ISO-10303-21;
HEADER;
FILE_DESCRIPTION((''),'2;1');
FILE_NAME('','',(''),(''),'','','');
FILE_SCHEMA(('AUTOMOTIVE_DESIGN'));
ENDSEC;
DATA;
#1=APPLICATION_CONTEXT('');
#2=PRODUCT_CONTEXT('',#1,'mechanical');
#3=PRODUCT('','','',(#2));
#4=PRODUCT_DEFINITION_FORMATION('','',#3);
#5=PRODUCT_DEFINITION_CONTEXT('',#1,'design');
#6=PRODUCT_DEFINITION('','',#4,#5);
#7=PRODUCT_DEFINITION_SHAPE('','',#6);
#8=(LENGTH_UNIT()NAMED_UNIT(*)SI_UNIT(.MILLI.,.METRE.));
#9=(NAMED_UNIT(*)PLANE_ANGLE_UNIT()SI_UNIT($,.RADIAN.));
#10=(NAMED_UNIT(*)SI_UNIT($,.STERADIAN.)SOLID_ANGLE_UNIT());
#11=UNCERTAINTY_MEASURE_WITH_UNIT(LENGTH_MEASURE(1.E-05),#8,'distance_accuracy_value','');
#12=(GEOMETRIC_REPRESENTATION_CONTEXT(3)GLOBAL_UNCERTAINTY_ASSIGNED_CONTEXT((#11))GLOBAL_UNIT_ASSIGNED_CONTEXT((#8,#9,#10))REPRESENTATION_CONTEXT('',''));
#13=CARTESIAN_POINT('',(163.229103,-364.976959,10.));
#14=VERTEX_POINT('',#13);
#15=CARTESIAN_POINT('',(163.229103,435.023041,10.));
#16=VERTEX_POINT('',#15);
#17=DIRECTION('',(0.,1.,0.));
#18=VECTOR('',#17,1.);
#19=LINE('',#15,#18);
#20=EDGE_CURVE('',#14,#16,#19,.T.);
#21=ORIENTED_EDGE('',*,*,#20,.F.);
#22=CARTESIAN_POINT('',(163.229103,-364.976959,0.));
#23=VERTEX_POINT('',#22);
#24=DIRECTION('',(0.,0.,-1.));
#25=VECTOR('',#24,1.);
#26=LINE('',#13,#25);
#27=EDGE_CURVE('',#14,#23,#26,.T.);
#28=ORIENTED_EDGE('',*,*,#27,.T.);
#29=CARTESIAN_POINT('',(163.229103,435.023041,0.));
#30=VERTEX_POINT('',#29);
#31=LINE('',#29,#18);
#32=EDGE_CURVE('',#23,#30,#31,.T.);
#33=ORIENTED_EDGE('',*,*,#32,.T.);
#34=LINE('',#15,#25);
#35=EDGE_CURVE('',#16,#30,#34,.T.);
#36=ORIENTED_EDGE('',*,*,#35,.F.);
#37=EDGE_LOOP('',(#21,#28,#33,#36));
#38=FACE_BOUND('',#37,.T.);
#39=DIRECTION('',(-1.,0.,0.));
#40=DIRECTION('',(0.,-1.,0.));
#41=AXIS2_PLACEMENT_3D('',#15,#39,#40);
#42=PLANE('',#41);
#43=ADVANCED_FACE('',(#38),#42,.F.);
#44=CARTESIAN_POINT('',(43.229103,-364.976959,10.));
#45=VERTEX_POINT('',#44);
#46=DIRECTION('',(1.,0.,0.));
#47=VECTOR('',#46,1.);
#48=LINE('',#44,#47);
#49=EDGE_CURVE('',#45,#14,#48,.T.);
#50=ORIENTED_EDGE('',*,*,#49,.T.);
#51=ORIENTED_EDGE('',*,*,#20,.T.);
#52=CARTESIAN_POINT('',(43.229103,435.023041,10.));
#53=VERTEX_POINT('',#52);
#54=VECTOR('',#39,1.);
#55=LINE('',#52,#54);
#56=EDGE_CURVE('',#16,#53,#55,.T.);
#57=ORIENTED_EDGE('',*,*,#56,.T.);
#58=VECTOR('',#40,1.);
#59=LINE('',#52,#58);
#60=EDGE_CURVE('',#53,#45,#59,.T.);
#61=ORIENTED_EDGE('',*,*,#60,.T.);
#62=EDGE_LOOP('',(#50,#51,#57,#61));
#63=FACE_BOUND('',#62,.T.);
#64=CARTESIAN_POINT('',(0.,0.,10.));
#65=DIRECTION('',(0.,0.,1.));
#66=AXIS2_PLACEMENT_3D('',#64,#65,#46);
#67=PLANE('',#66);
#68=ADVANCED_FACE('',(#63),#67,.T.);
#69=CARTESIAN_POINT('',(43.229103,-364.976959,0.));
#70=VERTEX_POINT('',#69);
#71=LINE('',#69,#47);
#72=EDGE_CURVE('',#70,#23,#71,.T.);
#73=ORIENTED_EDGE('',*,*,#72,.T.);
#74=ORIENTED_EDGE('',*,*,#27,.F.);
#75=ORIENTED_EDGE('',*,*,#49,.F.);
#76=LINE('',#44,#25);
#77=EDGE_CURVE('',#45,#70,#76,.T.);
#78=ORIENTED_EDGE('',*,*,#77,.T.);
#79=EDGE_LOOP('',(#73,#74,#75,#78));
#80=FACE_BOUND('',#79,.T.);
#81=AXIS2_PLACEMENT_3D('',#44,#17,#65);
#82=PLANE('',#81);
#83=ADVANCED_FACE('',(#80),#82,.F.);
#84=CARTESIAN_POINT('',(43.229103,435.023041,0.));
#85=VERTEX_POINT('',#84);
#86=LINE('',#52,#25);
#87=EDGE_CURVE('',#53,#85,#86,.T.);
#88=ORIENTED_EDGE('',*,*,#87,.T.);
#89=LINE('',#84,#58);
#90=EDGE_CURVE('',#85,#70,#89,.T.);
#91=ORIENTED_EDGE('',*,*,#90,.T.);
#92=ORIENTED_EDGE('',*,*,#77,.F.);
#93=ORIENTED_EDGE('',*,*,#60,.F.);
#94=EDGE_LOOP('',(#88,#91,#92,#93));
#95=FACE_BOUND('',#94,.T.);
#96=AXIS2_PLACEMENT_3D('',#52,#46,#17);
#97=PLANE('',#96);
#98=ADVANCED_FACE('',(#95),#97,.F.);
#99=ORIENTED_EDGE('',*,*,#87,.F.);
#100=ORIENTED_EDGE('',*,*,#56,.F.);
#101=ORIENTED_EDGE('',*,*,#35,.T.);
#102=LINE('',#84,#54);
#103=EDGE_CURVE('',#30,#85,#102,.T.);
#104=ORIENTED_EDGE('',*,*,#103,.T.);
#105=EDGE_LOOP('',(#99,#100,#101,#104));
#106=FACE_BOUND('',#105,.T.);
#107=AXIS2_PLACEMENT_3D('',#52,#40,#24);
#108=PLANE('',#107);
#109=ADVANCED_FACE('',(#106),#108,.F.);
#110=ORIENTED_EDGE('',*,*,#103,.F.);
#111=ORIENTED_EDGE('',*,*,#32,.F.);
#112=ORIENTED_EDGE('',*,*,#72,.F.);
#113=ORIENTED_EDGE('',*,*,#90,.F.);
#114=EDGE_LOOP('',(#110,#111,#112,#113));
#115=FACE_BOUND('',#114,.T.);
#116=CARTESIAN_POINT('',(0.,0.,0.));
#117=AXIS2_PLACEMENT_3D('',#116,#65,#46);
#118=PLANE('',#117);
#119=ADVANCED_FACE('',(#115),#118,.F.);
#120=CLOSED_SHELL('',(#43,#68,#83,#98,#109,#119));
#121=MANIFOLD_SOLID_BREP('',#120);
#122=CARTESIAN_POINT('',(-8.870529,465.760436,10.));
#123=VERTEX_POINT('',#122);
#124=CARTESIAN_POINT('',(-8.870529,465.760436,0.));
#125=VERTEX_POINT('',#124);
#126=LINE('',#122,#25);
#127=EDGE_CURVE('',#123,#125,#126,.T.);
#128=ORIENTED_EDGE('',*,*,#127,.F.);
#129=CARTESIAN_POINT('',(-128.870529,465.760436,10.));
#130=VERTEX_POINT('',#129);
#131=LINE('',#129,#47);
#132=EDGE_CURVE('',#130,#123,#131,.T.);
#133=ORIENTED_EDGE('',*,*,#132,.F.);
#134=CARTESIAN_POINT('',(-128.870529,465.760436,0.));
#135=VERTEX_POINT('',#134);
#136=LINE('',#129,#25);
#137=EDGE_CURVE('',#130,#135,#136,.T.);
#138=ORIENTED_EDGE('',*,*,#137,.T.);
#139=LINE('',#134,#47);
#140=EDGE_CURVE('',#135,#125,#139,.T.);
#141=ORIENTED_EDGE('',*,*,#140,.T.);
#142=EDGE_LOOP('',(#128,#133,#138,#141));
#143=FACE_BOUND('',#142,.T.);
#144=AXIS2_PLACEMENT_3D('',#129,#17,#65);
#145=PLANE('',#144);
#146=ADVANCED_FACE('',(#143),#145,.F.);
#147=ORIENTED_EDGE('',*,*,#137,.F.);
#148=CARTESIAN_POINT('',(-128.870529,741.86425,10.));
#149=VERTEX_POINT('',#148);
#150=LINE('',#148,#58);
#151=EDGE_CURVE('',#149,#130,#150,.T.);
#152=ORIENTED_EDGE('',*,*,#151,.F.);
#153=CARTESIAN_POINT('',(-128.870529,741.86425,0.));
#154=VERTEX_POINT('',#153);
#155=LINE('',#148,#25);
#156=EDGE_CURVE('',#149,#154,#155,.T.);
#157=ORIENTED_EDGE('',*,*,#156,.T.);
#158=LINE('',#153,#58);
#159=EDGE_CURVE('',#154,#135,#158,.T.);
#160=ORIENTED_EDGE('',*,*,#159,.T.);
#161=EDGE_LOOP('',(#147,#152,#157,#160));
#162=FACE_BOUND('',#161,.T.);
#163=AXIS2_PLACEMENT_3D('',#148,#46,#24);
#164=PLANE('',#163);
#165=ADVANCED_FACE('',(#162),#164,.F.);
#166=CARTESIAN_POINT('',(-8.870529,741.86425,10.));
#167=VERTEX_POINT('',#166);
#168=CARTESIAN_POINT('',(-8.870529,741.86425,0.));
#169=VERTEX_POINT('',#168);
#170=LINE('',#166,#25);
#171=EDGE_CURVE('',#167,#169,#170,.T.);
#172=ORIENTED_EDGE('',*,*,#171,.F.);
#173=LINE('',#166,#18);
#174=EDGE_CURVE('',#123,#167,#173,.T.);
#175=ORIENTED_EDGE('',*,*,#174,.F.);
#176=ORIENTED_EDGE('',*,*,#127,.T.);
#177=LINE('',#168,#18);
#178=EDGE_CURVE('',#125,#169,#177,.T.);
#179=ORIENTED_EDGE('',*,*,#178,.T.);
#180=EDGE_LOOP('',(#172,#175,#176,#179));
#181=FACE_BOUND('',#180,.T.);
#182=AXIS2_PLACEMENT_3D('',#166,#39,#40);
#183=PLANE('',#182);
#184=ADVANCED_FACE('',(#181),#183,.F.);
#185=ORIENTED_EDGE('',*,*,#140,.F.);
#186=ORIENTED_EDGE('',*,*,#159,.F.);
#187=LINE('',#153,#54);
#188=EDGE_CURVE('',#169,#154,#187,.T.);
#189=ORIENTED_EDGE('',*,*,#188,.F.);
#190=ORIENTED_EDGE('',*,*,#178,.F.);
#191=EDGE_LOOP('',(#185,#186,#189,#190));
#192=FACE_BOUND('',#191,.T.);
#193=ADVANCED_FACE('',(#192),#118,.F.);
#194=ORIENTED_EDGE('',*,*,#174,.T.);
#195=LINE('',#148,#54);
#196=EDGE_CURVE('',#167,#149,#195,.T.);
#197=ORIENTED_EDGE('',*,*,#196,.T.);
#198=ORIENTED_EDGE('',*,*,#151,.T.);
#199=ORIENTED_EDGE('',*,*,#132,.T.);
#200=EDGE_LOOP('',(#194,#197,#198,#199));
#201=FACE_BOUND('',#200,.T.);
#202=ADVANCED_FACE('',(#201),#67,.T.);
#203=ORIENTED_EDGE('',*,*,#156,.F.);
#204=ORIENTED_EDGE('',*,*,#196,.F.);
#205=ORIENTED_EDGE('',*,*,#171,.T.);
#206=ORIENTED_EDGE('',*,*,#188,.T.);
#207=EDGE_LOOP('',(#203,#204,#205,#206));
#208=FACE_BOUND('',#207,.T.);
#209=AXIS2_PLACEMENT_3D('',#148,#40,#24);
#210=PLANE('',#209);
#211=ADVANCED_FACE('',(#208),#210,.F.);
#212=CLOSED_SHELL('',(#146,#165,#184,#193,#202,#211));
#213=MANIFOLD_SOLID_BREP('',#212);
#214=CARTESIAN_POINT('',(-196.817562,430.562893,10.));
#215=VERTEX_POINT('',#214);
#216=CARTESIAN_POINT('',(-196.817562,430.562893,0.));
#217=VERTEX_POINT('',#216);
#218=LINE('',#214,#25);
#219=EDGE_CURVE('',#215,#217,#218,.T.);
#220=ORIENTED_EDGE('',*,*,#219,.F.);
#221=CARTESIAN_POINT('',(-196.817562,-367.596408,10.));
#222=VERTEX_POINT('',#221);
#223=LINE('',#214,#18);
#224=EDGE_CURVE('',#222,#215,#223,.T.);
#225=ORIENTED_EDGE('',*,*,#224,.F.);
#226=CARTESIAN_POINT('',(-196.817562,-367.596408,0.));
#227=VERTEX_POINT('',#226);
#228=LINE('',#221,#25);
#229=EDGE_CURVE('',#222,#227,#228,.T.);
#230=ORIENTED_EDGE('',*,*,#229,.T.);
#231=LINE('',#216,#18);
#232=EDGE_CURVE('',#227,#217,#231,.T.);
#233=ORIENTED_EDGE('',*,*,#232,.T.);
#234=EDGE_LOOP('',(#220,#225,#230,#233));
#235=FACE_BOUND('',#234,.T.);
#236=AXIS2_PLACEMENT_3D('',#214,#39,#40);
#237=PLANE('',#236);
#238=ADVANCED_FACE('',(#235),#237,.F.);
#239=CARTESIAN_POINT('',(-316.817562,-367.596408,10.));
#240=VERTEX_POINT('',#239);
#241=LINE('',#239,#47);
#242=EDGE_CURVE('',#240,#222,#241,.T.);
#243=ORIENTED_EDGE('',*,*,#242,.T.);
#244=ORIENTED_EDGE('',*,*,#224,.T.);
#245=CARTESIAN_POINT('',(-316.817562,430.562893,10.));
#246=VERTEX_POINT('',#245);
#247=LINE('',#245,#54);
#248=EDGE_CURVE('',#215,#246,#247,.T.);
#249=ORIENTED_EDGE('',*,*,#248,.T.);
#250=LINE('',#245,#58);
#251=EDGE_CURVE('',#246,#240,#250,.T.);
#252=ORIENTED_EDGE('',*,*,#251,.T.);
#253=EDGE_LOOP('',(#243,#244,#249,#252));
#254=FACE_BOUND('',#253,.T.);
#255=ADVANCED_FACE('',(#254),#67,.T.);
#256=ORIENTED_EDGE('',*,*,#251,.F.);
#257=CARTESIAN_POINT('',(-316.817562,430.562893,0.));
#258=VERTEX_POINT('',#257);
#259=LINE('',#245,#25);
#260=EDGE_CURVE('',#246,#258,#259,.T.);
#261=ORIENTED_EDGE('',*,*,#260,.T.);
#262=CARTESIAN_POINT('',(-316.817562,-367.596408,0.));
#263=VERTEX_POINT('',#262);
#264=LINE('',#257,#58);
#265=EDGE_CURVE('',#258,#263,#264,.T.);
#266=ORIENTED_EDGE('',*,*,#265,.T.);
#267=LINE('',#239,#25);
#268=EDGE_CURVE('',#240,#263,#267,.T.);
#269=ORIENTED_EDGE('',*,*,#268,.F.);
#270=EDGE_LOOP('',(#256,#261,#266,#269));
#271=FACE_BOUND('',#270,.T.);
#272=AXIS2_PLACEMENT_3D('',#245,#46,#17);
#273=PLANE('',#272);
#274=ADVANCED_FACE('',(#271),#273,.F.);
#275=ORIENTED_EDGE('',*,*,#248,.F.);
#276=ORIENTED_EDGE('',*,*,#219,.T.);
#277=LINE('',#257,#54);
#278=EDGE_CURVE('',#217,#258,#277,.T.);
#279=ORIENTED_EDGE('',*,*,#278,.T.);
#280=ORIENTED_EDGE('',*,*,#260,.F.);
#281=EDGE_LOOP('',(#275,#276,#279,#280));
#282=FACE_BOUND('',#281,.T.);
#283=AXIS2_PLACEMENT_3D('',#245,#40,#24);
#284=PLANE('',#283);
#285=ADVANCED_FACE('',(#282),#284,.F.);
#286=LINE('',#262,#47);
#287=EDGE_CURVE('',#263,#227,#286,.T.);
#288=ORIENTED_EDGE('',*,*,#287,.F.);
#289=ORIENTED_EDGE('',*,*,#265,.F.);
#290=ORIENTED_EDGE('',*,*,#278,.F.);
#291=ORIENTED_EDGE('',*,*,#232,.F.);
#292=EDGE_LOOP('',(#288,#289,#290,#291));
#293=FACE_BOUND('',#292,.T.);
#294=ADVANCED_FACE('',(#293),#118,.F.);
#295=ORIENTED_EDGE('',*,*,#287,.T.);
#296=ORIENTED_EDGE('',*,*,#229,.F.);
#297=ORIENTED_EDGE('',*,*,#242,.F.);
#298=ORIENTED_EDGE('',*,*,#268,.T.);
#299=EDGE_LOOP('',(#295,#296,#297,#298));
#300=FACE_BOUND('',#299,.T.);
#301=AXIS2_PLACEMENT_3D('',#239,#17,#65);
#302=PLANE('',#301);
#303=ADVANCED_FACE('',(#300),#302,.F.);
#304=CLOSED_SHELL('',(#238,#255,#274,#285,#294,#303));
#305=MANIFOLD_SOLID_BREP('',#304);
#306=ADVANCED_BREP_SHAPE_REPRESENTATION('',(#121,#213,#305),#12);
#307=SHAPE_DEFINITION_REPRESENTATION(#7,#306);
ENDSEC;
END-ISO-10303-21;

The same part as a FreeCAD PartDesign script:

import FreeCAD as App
import Part
import Sketcher


def add_polygon(sketch, points):
    """Adds a closed chain of lines whose ends are joined by coincident constraints."""
    first, n = sketch.GeometryCount, len(points)
    for a, b in zip(points, points[1:] + points[:1]):
        sketch.addGeometry(Part.LineSegment(App.Vector(*a, 0), App.Vector(*b, 0)), False)
    for i in range(n):
        sketch.addConstraint(Sketcher.Constraint("Coincident", first + i, 2, first + (i + 1) % n, 1))

doc = App.newDocument("Part")
body = doc.addObject("PartDesign::Body", "Body")

sketch1 = body.newObject("Sketcher::SketchObject", "Sketch")
sketch1.AttachmentSupport = (doc.getObject("XY_Plane"), [""])
sketch1.MapMode = "FlatFace"
add_polygon(sketch1, [(43.229103, 435.023041), (43.229103, -364.976959), (163.229103, -364.976959), (163.229103, 435.023041)])
sketch1.addConstraint([
    Sketcher.Constraint("Vertical", 0),
    Sketcher.Constraint("Horizontal", 1),
    Sketcher.Constraint("Vertical", 2),
    Sketcher.Constraint("Horizontal", 3),
    Sketcher.Constraint("DistanceX", 1, 1, 1, 2, 120.0),
    Sketcher.Constraint("DistanceY", 0, 2, 0, 1, 800.0),
    Sketcher.Constraint("DistanceY", 0, 2, -1, 1, 364.976959),
    Sketcher.Constraint("DistanceX", -1, 1, 0, 2, 43.229103),
])
pad1 = body.newObject("PartDesign::Pad", "Pad")
pad1.Profile = sketch1
pad1.Length = 10
body2 = doc.addObject("PartDesign::Body", "Body001")

sketch2 = body2.newObject("Sketcher::SketchObject", "Sketch001")
sketch2.AttachmentSupport = (doc.getObject("XY_Plane001"), [""])
sketch2.MapMode = "FlatFace"
add_polygon(sketch2, [(-316.817562, 430.562893), (-316.817562, -367.596408), (-196.817562, -367.596408), (-196.817562, 430.562893)])
sketch2.addConstraint([
    Sketcher.Constraint("Vertical", 0),
    Sketcher.Constraint("Horizontal", 1),
    Sketcher.Constraint("Vertical", 2),
    Sketcher.Constraint("Horizontal", 3),
    Sketcher.Constraint("DistanceX", 1, 1, 1, 2, 120.0),
    Sketcher.Constraint("DistanceY", 0, 2, 0, 1, 798.1593),
    Sketcher.Constraint("DistanceX", 0, 2, -1, 1, 316.817562),
    Sketcher.Constraint("DistanceY", 0, 2, -1, 1, 367.596408),
])
pad2 = body2.newObject("PartDesign::Pad", "Pad001")
pad2.Profile = sketch2
pad2.Length = 10
body3 = doc.addObject("PartDesign::Body", "Body002")

sketch3 = body3.newObject("Sketcher::SketchObject", "Sketch002")
sketch3.AttachmentSupport = (doc.getObject("XY_Plane002"), [""])
sketch3.MapMode = "FlatFace"
add_polygon(sketch3, [(-128.870529, 741.86425), (-128.870529, 465.760436), (-8.870529, 465.760436), (-8.870529, 741.86425)])
sketch3.addConstraint([
    Sketcher.Constraint("Vertical", 0),
    Sketcher.Constraint("Horizontal", 1),
    Sketcher.Constraint("Vertical", 2),
    Sketcher.Constraint("Horizontal", 3),
    Sketcher.Constraint("DistanceX", 1, 1, 1, 2, 120.0),
    Sketcher.Constraint("DistanceY", 0, 2, 0, 1, 276.103814),
    Sketcher.Constraint("DistanceX", 0, 2, -1, 1, 128.870529),
    Sketcher.Constraint("DistanceY", -1, 1, 2, 2, 741.86425),
])
pad3 = body3.newObject("PartDesign::Pad", "Pad002")
pad3.Profile = sketch3
pad3.Length = 10

doc.recompute()
